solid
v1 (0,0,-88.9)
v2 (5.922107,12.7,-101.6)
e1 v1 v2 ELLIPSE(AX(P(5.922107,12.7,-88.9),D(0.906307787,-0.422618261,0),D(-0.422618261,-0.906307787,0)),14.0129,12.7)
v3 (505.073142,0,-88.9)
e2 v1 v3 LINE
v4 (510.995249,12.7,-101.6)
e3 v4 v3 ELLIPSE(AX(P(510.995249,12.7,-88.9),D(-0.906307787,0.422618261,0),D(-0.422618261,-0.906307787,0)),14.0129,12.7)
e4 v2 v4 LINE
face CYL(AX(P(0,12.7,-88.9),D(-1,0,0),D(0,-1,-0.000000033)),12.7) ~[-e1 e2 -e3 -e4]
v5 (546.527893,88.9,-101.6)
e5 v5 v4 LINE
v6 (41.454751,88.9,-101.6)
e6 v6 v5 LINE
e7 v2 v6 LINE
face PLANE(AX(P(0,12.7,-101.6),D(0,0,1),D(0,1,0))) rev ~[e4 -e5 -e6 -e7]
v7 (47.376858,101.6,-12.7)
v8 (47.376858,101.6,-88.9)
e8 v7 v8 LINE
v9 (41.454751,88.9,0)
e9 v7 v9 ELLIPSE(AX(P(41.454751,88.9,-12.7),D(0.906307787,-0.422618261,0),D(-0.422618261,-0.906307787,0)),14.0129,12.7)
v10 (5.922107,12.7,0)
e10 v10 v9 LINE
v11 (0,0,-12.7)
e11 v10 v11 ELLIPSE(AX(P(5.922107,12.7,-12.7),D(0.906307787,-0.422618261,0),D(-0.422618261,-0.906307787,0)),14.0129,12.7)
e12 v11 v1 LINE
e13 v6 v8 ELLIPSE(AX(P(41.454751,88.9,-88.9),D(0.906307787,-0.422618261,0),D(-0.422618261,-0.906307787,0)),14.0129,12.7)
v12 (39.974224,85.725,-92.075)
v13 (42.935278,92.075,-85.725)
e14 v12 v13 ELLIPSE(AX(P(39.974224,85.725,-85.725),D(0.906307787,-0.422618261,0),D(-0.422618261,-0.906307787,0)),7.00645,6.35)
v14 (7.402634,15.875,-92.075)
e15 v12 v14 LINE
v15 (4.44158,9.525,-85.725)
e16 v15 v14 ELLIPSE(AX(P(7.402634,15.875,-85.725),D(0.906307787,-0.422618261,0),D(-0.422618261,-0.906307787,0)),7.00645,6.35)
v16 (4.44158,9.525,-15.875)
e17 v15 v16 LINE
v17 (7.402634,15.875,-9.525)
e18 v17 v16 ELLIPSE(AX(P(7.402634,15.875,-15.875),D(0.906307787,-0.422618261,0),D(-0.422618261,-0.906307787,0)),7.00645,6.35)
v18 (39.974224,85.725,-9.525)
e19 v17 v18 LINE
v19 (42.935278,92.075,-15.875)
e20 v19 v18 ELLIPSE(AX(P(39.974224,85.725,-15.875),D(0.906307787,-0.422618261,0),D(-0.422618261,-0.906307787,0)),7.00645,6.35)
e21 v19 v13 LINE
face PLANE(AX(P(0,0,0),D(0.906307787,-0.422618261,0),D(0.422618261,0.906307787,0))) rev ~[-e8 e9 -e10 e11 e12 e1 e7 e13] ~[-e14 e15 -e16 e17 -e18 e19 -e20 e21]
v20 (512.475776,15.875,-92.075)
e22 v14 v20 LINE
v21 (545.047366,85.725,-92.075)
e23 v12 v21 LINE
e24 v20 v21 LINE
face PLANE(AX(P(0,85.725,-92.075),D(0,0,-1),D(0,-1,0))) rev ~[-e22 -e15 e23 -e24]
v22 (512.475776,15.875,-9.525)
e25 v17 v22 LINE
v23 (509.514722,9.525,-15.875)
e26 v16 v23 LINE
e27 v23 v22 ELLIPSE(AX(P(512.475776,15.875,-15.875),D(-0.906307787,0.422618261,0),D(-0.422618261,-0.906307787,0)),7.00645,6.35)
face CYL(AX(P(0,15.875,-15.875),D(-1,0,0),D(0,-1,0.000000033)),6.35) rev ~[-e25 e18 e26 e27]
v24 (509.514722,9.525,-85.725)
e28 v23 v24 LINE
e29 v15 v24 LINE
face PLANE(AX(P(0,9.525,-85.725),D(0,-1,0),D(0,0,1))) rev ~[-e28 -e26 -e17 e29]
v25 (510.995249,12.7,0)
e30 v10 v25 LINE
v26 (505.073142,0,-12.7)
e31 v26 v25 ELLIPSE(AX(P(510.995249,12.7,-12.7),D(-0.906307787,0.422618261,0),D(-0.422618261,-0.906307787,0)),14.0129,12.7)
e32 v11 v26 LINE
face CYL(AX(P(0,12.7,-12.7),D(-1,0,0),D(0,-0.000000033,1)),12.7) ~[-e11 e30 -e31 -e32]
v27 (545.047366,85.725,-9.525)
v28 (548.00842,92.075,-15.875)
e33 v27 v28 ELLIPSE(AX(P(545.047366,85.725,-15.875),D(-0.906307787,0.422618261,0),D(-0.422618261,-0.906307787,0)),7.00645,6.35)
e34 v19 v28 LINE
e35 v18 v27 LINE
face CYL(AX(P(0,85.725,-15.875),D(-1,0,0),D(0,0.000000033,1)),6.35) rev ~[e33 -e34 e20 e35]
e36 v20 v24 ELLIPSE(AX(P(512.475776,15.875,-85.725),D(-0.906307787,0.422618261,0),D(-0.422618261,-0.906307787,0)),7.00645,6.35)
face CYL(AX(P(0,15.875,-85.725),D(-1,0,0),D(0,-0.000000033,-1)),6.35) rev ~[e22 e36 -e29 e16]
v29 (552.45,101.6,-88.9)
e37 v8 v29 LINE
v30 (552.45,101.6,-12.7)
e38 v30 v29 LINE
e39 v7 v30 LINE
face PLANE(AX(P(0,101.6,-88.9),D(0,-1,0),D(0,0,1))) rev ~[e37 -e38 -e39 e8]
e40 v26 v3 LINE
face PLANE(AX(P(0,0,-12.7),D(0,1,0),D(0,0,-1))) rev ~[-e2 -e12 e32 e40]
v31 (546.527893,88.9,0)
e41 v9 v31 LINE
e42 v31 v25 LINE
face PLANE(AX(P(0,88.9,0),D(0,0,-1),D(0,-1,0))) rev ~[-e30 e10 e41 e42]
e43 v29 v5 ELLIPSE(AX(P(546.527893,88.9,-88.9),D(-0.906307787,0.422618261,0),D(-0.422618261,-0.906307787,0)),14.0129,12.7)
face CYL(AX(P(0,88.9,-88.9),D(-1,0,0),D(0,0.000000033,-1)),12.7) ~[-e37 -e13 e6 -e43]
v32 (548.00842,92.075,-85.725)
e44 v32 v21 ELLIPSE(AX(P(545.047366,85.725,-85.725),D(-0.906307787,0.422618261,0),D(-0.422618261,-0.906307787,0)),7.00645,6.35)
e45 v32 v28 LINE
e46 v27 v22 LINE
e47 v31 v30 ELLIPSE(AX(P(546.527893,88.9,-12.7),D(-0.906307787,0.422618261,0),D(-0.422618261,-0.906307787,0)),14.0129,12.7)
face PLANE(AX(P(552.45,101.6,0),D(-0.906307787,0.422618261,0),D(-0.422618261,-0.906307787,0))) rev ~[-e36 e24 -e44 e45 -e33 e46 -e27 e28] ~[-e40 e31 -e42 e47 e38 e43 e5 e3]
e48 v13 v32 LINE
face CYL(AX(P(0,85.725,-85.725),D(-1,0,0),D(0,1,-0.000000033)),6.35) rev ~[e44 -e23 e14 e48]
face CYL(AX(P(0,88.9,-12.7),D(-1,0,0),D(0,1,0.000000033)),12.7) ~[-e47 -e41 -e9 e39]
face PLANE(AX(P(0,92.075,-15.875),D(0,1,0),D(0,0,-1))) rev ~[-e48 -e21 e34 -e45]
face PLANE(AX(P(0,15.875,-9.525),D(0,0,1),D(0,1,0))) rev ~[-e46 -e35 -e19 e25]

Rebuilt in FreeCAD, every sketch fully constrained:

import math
import FreeCAD as App
import Part
import Sketcher

V = App.Vector
Q = App.Units.Quantity


def add_polygon(sketch, points):
    """Adds a closed chain of lines whose ends are joined by coincident constraints."""
    first, n = sketch.GeometryCount, len(points)
    for a, b in zip(points, points[1:] + points[:1]):
        sketch.addGeometry(Part.LineSegment(App.Vector(*a, 0), App.Vector(*b, 0)), False)
    for i in range(n):
        sketch.addConstraint(Sketcher.Constraint("Coincident", first + i, 2, first + (i + 1) % n, 1))

doc = App.newDocument("Part")
params = doc.addObject("Spreadsheet::Sheet", "Params")
for row, (alias, value) in enumerate([
    ("sketch1_radius", "0.5 in"),
    ("sketch1_width", "3 in"),
    ("sketch1_radius2", "0.25 in"),
    ("sketch1_width2", "2.75 in"),
    ("pad1_length", "65 in"),
    ("sketch2_height", "4 in"),
    ("sketch2_width", "43.25 in"),
    ("pocket1_length", "5 in"),
], start=1):
    params.set(f"A{row}", alias)
    params.set(f"B{row}", "=" + value)
    params.setAlias(f"B{row}", alias)

body = doc.addObject("PartDesign::Body", "Body")

# Sketch on YZ plane
sketch1 = doc.addObject("Sketcher::SketchObject", "Sketch")
body.addObject(sketch1)
sketch1.AttachmentSupport = (doc.YZ_Plane, [""])
sketch1.MapMode = "FlatFace"
sketch1.addGeometry([
    Part.LineSegment(V(89, 0, 0), V(13, 0, 0)),  # 0
    Part.ArcOfCircle(Part.Circle(V(13, -13, 0), V(0, 0, 1), 13), math.radians(90), math.radians(180)),  # 1
    Part.LineSegment(V(0, -13, 0), V(0, -89, 0)),  # 2
    Part.ArcOfCircle(Part.Circle(V(13, -89, 0), V(0, 0, 1), 13), math.radians(-180), math.radians(-90)),  # 3
    Part.LineSegment(V(13, -102, 0), V(89, -102, 0)),  # 4
    Part.ArcOfCircle(Part.Circle(V(89, -89, 0), V(0, 0, 1), 13), math.radians(-90), math.radians(0)),  # 5
    Part.LineSegment(V(102, -89, 0), V(102, -13, 0)),  # 6
    Part.ArcOfCircle(Part.Circle(V(89, -13, 0), V(0, 0, 1), 13), math.radians(0), math.radians(90)),  # 7
    Part.LineSegment(V(10, -86, 0), V(10, -16, 0)),  # 8
    Part.ArcOfCircle(Part.Circle(V(16, -16, 0), V(0, 0, 1), 6), math.radians(90), math.radians(180)),  # 9
    Part.LineSegment(V(16, -10, 0), V(86, -10, 0)),  # 10
    Part.ArcOfCircle(Part.Circle(V(86, -16, 0), V(0, 0, 1), 6), math.radians(0), math.radians(90)),  # 11
    Part.LineSegment(V(92, -16, 0), V(92, -86, 0)),  # 12
    Part.ArcOfCircle(Part.Circle(V(86, -86, 0), V(0, 0, 1), 6), math.radians(-90), math.radians(0)),  # 13
    Part.LineSegment(V(86, -92, 0), V(16, -92, 0)),  # 14
    Part.ArcOfCircle(Part.Circle(V(16, -86, 0), V(0, 0, 1), 6), math.radians(-180), math.radians(-90)),  # 15
], False)
sketch1.addConstraint([
    Sketcher.Constraint("Tangent", 0, 2, 1, 1),
    Sketcher.Constraint("Tangent", 1, 2, 2, 1),
    Sketcher.Constraint("Tangent", 2, 2, 3, 1),
    Sketcher.Constraint("Tangent", 3, 2, 4, 1),
    Sketcher.Constraint("Tangent", 4, 2, 5, 1),
    Sketcher.Constraint("Tangent", 5, 2, 6, 1),
    Sketcher.Constraint("Tangent", 6, 2, 7, 1),
    Sketcher.Constraint("Tangent", 7, 2, 0, 1),
    Sketcher.Constraint("Tangent", 8, 2, 9, 2),
    Sketcher.Constraint("Tangent", 9, 1, 10, 1),
    Sketcher.Constraint("Tangent", 10, 2, 11, 2),
    Sketcher.Constraint("Tangent", 11, 1, 12, 1),
    Sketcher.Constraint("Tangent", 12, 2, 13, 2),
    Sketcher.Constraint("Tangent", 13, 1, 14, 1),
    Sketcher.Constraint("Tangent", 14, 2, 15, 2),
    Sketcher.Constraint("Tangent", 15, 1, 8, 1),
    Sketcher.Constraint("Horizontal", 0),
    Sketcher.Constraint("Vertical", 2),
    Sketcher.Constraint("Horizontal", 4),
    Sketcher.Constraint("Vertical", 6),
    Sketcher.Constraint("Vertical", 8),
    Sketcher.Constraint("Horizontal", 10),
    Sketcher.Constraint("Vertical", 12),
    Sketcher.Constraint("Horizontal", 14),
    Sketcher.Constraint("Equal", 1, 3),
    Sketcher.Constraint("Equal", 3, 5),
    Sketcher.Constraint("Equal", 5, 7),
    Sketcher.Constraint("Equal", 9, 11),
    Sketcher.Constraint("Equal", 11, 13),
    Sketcher.Constraint("Equal", 13, 15),
    Sketcher.Constraint("PointOnObject", 0, 2, -1),
    Sketcher.Constraint("PointOnObject", 1, 2, -2),
    Sketcher.Constraint("Equal", 4, 2),
    Sketcher.Constraint("Equal", 14, 8),
    Sketcher.Constraint("Radius", 1, Q("0.5 in")),
    Sketcher.Constraint("DistanceX", 0, 2, 0, 1, Q("3 in")),
    Sketcher.Constraint("Radius", 9, Q("0.25 in")),
    Sketcher.Constraint("DistanceX", 10, 1, 10, 2, Q("2.75 in")),
    Sketcher.Constraint("DistanceX", -1, 1, 9, 3, Q("0.625 in")),
    Sketcher.Constraint("DistanceY", 9, 3, -1, 1, Q("0.625 in")),
])
sketch1.setExpression("Constraints[34]", "Params.sketch1_radius")
sketch1.setExpression("Constraints[35]", "Params.sketch1_width")
sketch1.setExpression("Constraints[36]", "Params.sketch1_radius2")
sketch1.setExpression("Constraints[37]", "Params.sketch1_width2")
pad1 = doc.addObject("PartDesign::Pad", "Pad")
body.addObject(pad1)
pad1.Profile = sketch1
pad1.setExpression("Length", "Params.pad1_length")

# Sketch on XY plane
sketch2 = doc.addObject("Sketcher::SketchObject", "Sketch001")
body.addObject(sketch2)
sketch2.AttachmentSupport = (doc.XY_Plane, [""])
sketch2.MapMode = "FlatFace"
add_polygon(sketch2, [(505, 0), (1651, 0), (1651, 102), (552, 102)])  # lines 0-3
add_polygon(sketch2, [(0, 0), (47, 102), (0, 102)])  # lines 4-6
sketch2.addConstraint([
    Sketcher.Constraint("Horizontal", 0),
    Sketcher.Constraint("Vertical", 1),
    Sketcher.Constraint("Horizontal", 2),
    Sketcher.Constraint("Horizontal", 5),
    Sketcher.Constraint("Vertical", 6),
    Sketcher.Constraint("Coincident", 6, 2, -1, 1),
    Sketcher.Constraint("PointOnObject", 0, 2, -1),
    Sketcher.Constraint("Parallel", 3, 4),
    Sketcher.Constraint("Horizontal", 2, 2, 4, 2),
    Sketcher.Constraint("DistanceY", 1, 1, 1, 2, Q("4 in")),
    Sketcher.Constraint("DistanceX", -1, 1, 0, 2, Q("65 in")),
    Sketcher.Constraint("Angle", 3, Q("-115 deg")),
    Sketcher.Constraint("DistanceX", 2, 2, 2, 1, Q("43.25 in")),
])
sketch2.setExpression("Constraints[16]", "Params.sketch2_height")
sketch2.setExpression("Constraints[19]", "Params.sketch2_width")
pocket1 = doc.addObject("PartDesign::Pocket", "Pocket")
body.addObject(pocket1)
pocket1.Profile = sketch2
pocket1.setExpression("Length", "Params.pocket1_length")

doc.recompute()
